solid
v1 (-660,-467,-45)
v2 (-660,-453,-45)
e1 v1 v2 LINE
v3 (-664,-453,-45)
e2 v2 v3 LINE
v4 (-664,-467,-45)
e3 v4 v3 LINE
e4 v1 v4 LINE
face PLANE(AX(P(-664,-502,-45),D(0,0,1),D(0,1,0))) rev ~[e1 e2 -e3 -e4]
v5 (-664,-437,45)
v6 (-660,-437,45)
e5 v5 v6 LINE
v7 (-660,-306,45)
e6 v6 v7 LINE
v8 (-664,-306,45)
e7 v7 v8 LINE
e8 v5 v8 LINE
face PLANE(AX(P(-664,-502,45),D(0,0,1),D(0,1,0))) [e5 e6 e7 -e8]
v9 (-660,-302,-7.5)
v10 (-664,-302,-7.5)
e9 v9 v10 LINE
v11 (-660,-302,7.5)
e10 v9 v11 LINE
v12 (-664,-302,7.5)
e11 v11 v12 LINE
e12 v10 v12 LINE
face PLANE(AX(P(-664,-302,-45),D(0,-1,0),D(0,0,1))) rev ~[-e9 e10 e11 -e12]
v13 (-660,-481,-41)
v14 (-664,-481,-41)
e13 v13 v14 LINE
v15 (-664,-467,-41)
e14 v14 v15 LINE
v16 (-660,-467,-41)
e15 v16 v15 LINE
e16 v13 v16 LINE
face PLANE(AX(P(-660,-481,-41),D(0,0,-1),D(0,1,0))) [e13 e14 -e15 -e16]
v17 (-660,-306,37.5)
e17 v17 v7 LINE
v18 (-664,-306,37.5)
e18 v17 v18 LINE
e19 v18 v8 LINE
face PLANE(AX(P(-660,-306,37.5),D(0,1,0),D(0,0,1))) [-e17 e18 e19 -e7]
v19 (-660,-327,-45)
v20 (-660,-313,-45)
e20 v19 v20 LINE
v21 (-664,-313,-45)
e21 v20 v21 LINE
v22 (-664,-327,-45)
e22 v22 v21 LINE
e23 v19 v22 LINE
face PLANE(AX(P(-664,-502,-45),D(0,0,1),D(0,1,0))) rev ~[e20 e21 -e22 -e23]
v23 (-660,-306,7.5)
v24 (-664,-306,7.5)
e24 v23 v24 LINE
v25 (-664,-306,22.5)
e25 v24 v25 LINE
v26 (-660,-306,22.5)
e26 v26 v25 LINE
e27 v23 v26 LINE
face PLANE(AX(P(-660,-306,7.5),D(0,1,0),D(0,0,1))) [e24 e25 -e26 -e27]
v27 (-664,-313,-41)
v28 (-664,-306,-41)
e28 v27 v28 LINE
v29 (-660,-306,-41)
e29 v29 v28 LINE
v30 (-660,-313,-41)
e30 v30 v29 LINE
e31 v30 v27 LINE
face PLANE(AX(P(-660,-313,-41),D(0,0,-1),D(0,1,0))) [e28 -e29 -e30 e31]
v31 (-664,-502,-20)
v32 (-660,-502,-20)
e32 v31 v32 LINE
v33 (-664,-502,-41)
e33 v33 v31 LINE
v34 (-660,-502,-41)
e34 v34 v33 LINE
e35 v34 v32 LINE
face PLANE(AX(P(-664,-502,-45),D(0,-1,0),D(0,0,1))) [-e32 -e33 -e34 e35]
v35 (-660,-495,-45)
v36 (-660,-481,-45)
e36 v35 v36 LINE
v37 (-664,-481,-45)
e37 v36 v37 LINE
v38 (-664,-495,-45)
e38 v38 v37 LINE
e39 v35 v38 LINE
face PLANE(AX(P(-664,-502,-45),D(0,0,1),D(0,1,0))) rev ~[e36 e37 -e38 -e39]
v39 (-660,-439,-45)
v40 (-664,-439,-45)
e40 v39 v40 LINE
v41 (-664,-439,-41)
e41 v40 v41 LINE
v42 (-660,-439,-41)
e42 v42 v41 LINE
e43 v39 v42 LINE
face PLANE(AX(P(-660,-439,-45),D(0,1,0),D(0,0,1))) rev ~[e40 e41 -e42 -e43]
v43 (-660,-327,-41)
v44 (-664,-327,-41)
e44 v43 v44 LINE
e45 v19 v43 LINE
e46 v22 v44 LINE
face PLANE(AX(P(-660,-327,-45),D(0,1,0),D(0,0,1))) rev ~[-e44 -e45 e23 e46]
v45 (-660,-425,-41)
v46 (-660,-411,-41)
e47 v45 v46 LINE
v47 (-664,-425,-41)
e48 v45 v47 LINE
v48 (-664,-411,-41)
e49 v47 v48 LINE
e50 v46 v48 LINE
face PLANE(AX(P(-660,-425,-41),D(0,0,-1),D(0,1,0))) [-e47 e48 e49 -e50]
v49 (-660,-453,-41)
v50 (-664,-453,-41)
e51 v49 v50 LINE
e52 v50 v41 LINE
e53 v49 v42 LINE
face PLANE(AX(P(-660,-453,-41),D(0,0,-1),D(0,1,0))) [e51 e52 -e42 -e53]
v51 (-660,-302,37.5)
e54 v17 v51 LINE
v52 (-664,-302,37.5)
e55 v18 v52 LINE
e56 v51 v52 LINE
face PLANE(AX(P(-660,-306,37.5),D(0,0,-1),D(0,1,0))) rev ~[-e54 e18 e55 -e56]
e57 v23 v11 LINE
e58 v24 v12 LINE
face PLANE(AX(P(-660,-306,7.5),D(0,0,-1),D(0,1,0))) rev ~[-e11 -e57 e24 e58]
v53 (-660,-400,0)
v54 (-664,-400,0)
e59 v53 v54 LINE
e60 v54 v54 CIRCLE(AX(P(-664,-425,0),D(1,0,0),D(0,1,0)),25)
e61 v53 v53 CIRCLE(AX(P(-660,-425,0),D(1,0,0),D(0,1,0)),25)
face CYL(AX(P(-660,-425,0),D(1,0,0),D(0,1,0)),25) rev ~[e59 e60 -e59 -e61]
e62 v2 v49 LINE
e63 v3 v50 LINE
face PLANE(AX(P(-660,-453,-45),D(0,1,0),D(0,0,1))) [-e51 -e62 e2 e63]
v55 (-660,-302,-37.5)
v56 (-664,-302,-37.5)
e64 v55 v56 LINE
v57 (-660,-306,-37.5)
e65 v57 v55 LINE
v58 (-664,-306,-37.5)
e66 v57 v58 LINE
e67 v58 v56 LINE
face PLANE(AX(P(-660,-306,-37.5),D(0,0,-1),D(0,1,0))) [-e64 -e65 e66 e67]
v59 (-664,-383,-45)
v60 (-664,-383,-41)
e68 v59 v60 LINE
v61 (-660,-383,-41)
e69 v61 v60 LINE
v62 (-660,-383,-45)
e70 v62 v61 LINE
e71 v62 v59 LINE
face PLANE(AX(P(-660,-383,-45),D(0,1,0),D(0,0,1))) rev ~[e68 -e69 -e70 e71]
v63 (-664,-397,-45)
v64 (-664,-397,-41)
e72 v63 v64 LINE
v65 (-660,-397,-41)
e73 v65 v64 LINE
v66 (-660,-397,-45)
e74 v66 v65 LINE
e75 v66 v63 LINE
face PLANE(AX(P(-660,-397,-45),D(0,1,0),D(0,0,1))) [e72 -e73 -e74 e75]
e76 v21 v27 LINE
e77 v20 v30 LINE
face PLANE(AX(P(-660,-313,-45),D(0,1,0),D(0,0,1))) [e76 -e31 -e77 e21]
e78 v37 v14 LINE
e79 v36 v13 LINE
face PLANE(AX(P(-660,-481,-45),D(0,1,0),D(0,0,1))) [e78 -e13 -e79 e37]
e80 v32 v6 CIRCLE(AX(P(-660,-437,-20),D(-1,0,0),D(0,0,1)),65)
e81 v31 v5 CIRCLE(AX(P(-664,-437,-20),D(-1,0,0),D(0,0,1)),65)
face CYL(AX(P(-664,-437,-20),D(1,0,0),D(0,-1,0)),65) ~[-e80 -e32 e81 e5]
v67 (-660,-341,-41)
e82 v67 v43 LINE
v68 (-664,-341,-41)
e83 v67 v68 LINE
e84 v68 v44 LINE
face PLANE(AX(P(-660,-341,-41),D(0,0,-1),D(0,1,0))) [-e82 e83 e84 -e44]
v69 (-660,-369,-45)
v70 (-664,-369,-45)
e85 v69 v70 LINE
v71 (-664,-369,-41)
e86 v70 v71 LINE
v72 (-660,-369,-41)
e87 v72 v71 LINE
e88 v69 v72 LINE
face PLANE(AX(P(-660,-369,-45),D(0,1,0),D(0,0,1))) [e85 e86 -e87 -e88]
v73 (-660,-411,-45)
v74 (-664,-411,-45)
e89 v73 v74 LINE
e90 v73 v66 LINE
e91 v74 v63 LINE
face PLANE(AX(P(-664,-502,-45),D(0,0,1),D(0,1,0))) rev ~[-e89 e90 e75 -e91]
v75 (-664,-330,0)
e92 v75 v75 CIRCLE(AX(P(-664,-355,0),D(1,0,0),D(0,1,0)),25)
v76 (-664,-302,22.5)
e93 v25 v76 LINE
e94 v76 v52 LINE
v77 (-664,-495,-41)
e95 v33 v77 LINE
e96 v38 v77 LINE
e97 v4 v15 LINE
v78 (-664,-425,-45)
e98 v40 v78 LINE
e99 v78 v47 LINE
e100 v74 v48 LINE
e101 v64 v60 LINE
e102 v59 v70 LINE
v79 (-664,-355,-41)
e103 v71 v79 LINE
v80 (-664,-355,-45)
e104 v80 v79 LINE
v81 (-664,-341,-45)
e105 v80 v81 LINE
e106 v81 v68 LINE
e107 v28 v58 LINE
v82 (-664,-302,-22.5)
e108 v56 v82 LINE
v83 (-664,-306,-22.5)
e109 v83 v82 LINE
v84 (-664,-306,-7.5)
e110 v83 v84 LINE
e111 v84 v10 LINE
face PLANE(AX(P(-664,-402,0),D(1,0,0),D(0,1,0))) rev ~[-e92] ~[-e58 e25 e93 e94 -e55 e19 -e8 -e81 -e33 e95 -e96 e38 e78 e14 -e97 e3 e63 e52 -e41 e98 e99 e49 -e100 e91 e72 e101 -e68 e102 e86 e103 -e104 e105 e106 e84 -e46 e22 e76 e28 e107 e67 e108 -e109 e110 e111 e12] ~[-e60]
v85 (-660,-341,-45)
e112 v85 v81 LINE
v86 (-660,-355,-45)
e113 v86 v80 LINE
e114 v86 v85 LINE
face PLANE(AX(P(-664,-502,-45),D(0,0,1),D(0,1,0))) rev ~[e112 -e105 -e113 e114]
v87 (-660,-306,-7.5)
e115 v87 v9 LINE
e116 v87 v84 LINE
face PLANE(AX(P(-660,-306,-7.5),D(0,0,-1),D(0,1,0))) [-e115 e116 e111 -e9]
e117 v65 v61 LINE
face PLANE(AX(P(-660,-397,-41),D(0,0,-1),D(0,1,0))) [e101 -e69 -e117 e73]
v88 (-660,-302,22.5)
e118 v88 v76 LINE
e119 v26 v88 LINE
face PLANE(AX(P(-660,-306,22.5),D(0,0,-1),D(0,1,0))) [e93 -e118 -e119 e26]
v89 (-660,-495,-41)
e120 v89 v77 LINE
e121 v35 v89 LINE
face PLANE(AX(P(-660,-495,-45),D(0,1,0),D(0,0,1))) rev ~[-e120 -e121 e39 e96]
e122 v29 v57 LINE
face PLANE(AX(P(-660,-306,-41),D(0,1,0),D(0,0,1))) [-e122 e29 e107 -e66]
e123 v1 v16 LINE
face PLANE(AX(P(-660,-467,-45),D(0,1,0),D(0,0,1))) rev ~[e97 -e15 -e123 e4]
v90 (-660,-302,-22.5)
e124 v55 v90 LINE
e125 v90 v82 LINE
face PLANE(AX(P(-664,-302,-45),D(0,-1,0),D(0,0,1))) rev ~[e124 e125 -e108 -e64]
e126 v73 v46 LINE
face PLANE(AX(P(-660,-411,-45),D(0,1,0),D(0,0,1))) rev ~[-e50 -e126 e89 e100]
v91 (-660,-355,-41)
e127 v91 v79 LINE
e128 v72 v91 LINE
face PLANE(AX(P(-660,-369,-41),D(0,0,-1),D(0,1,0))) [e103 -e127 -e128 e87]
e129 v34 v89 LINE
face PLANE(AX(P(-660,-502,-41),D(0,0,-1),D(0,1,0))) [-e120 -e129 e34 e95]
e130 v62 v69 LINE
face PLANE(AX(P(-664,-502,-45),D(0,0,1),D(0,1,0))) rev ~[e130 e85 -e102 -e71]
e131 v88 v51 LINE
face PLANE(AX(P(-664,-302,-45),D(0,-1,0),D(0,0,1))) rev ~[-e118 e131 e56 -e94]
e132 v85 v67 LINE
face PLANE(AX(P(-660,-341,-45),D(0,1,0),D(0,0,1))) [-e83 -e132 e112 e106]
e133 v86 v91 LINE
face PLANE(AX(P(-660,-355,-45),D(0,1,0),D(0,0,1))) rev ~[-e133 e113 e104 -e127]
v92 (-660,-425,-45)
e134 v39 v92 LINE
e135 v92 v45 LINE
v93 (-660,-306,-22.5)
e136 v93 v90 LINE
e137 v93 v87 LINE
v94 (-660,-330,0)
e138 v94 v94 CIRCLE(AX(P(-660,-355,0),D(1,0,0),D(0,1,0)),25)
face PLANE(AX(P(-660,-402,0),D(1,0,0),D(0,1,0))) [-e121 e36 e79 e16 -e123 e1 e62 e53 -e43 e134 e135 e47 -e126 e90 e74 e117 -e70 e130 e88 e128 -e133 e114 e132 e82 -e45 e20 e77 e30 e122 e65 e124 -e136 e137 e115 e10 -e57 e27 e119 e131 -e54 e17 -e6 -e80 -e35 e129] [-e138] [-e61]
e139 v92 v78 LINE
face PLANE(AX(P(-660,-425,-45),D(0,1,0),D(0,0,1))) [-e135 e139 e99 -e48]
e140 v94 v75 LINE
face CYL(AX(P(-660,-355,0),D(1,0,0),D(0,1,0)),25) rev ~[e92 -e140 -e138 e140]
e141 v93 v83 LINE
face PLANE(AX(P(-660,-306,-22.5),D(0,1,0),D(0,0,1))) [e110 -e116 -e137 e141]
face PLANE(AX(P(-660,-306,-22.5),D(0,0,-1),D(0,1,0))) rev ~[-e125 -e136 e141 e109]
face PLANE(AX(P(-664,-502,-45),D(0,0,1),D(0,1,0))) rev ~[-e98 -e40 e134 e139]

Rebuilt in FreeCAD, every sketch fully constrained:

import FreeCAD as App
import Part
import Sketcher
from FreeCAD import Vector
Q = App.Units.Quantity


def edges_at(feature, points):
    """Names of the edges that pass closest to the given points."""
    edges = feature.Shape.Edges
    near = lambda p: min(range(len(edges)), key=lambda i: edges[i].distToShape(Part.Vertex(*p))[0])
    return sorted({f"Edge{near(p) + 1}" for p in points})

doc = App.newDocument("Part")
body = doc.addObject("PartDesign::Body", "Body")

# Sketch on YZ plane
sketch1 = body.newObject("Sketcher::SketchObject", "Sketch")
sketch1.AttachmentSupport = (doc.getObject("YZ_Plane"), [""])
sketch1.MapMode = "FlatFace"
sketch1.addGeometry([
    Part.LineSegment(Vector(-100, 45, 0), Vector(-100, -45, 0)),
    Part.LineSegment(Vector(-100, -45, 0), Vector(100, -45, 0)),
    Part.LineSegment(Vector(100, -45, 0), Vector(100, 45, 0)),
    Part.LineSegment(Vector(100, 45, 0), Vector(-100, 45, 0)),
], False)
sketch1.addConstraint([
    Sketcher.Constraint("Coincident", 0, 2, 1, 1),
    Sketcher.Constraint("Coincident", 1, 2, 2, 1),
    Sketcher.Constraint("Coincident", 2, 2, 3, 1),
    Sketcher.Constraint("Coincident", 3, 2, 0, 1),
    Sketcher.Constraint("Vertical", 0),
    Sketcher.Constraint("Horizontal", 1),
    Sketcher.Constraint("Vertical", 2),
    Sketcher.Constraint("Horizontal", 3),
    Sketcher.Constraint("Symmetric", 0, 2, 2, 2, -1, 1),
    Sketcher.Constraint("DistanceX", 1, 1, 1, 2, Q("200 mm")),
    Sketcher.Constraint("DistanceY", 0, 2, 0, 1, Q("90 mm")),
])
pad1 = body.newObject("PartDesign::Pad", "Pad")
pad1.Profile = sketch1
pad1.Length = 4

# Sketch on YZ plane
sketch2 = body.newObject("Sketcher::SketchObject", "Sketch001")
sketch2.AttachmentSupport = (doc.getObject("YZ_Plane"), [""])
sketch2.MapMode = "FlatFace"
sketch2.AttachmentOffset = App.Placement(Vector(0, 0, 4), App.Rotation())
sketch2.addGeometry([
    Part.Circle(Vector(-23, 0, 0), Vector(0, 0, 1), 25),  # 0
    Part.Circle(Vector(47, 0, 0), Vector(0, 0, 1), 25),  # 1
    Part.LineSegment(Vector(-100, -41, 0), Vector(-100, -45, 0)),  # 2
    Part.LineSegment(Vector(-100, -45, 0), Vector(-93, -45, 0)),  # 3
    Part.LineSegment(Vector(-93, -45, 0), Vector(-93, -41, 0)),  # 4
    Part.LineSegment(Vector(-93, -41, 0), Vector(-100, -41, 0)),  # 5
    Part.LineSegment(Vector(-79, -41, 0), Vector(-79, -45, 0)),  # 6
    Part.LineSegment(Vector(-79, -45, 0), Vector(-65, -45, 0)),  # 7
    Part.LineSegment(Vector(-65, -45, 0), Vector(-65, -41, 0)),  # 8
    Part.LineSegment(Vector(-65, -41, 0), Vector(-79, -41, 0)),  # 9
    Part.LineSegment(Vector(-51, -41, 0), Vector(-51, -45, 0)),  # 10
    Part.LineSegment(Vector(-51, -45, 0), Vector(-37, -45, 0)),  # 11
    Part.LineSegment(Vector(-37, -45, 0), Vector(-37, -41, 0)),  # 12
    Part.LineSegment(Vector(-37, -41, 0), Vector(-51, -41, 0)),  # 13
    Part.LineSegment(Vector(-23, -41, 0), Vector(-23, -45, 0)),  # 14
    Part.LineSegment(Vector(-23, -45, 0), Vector(-9, -45, 0)),  # 15
    Part.LineSegment(Vector(-9, -45, 0), Vector(-9, -41, 0)),  # 16
    Part.LineSegment(Vector(-9, -41, 0), Vector(-23, -41, 0)),  # 17
    Part.LineSegment(Vector(5, -41, 0), Vector(5, -45, 0)),  # 18
    Part.LineSegment(Vector(5, -45, 0), Vector(19, -45, 0)),  # 19
    Part.LineSegment(Vector(19, -45, 0), Vector(19, -41, 0)),  # 20
    Part.LineSegment(Vector(19, -41, 0), Vector(5, -41, 0)),  # 21
    Part.LineSegment(Vector(33, -41, 0), Vector(33, -45, 0)),  # 22
    Part.LineSegment(Vector(33, -45, 0), Vector(47, -45, 0)),  # 23
    Part.LineSegment(Vector(47, -45, 0), Vector(47, -41, 0)),  # 24
    Part.LineSegment(Vector(47, -41, 0), Vector(33, -41, 0)),  # 25
    Part.LineSegment(Vector(61, -41, 0), Vector(61, -45, 0)),  # 26
    Part.LineSegment(Vector(61, -45, 0), Vector(75, -45, 0)),  # 27
    Part.LineSegment(Vector(75, -45, 0), Vector(75, -41, 0)),  # 28
    Part.LineSegment(Vector(75, -41, 0), Vector(61, -41, 0)),  # 29
    Part.LineSegment(Vector(96, -7.5, 0), Vector(96, -22.5, 0)),  # 30
    Part.LineSegment(Vector(96, -22.5, 0), Vector(100, -22.5, 0)),  # 31
    Part.LineSegment(Vector(100, -22.5, 0), Vector(100, -7.5, 0)),  # 32
    Part.LineSegment(Vector(100, -7.5, 0), Vector(96, -7.5, 0)),  # 33
    Part.LineSegment(Vector(96, 22.5, 0), Vector(96, 7.5, 0)),  # 34
    Part.LineSegment(Vector(96, 7.5, 0), Vector(100, 7.5, 0)),  # 35
    Part.LineSegment(Vector(100, 7.5, 0), Vector(100, 22.5, 0)),  # 36
    Part.LineSegment(Vector(100, 22.5, 0), Vector(96, 22.5, 0)),  # 37
    Part.LineSegment(Vector(96, 45, 0), Vector(96, 37.5, 0)),  # 38
    Part.LineSegment(Vector(96, 37.5, 0), Vector(100, 37.5, 0)),  # 39
    Part.LineSegment(Vector(100, 37.5, 0), Vector(100, 45, 0)),  # 40
    Part.LineSegment(Vector(100, 45, 0), Vector(96, 45, 0)),  # 41
    Part.LineSegment(Vector(89, -41, 0), Vector(89, -45, 0)),  # 42
    Part.LineSegment(Vector(89, -45, 0), Vector(100, -45, 0)),  # 43
    Part.LineSegment(Vector(100, -45, 0), Vector(100, -37.5, 0)),  # 44
    Part.LineSegment(Vector(100, -37.5, 0), Vector(96, -37.5, 0)),  # 45
    Part.LineSegment(Vector(96, -37.5, 0), Vector(96, -41, 0)),  # 46
    Part.LineSegment(Vector(96, -41, 0), Vector(89, -41, 0)),  # 47
], False)
sketch2.addConstraint([
    Sketcher.Constraint("Coincident", 2, 2, 3, 1),
    Sketcher.Constraint("Coincident", 3, 2, 4, 1),
    Sketcher.Constraint("Coincident", 4, 2, 5, 1),
    Sketcher.Constraint("Coincident", 5, 2, 2, 1),
    Sketcher.Constraint("Coincident", 6, 2, 7, 1),
    Sketcher.Constraint("Coincident", 7, 2, 8, 1),
    Sketcher.Constraint("Coincident", 8, 2, 9, 1),
    Sketcher.Constraint("Coincident", 9, 2, 6, 1),
    Sketcher.Constraint("Coincident", 10, 2, 11, 1),
    Sketcher.Constraint("Coincident", 11, 2, 12, 1),
    Sketcher.Constraint("Coincident", 12, 2, 13, 1),
    Sketcher.Constraint("Coincident", 13, 2, 10, 1),
    Sketcher.Constraint("Coincident", 14, 2, 15, 1),
    Sketcher.Constraint("Coincident", 15, 2, 16, 1),
    Sketcher.Constraint("Coincident", 16, 2, 17, 1),
    Sketcher.Constraint("Coincident", 17, 2, 14, 1),
    Sketcher.Constraint("Coincident", 18, 2, 19, 1),
    Sketcher.Constraint("Coincident", 19, 2, 20, 1),
    Sketcher.Constraint("Coincident", 20, 2, 21, 1),
    Sketcher.Constraint("Coincident", 21, 2, 18, 1),
    Sketcher.Constraint("Coincident", 22, 2, 23, 1),
    Sketcher.Constraint("Coincident", 23, 2, 24, 1),
    Sketcher.Constraint("Coincident", 24, 2, 25, 1),
    Sketcher.Constraint("Coincident", 25, 2, 22, 1),
    Sketcher.Constraint("Coincident", 26, 2, 27, 1),
    Sketcher.Constraint("Coincident", 27, 2, 28, 1),
    Sketcher.Constraint("Coincident", 28, 2, 29, 1),
    Sketcher.Constraint("Coincident", 29, 2, 26, 1),
    Sketcher.Constraint("Coincident", 30, 2, 31, 1),
    Sketcher.Constraint("Coincident", 31, 2, 32, 1),
    Sketcher.Constraint("Coincident", 32, 2, 33, 1),
    Sketcher.Constraint("Coincident", 33, 2, 30, 1),
    Sketcher.Constraint("Coincident", 34, 2, 35, 1),
    Sketcher.Constraint("Coincident", 35, 2, 36, 1),
    Sketcher.Constraint("Coincident", 36, 2, 37, 1),
    Sketcher.Constraint("Coincident", 37, 2, 34, 1),
    Sketcher.Constraint("Coincident", 38, 2, 39, 1),
    Sketcher.Constraint("Coincident", 39, 2, 40, 1),
    Sketcher.Constraint("Coincident", 40, 2, 41, 1),
    Sketcher.Constraint("Coincident", 41, 2, 38, 1),
    Sketcher.Constraint("Coincident", 42, 2, 43, 1),
    Sketcher.Constraint("Coincident", 43, 2, 44, 1),
    Sketcher.Constraint("Coincident", 44, 2, 45, 1),
    Sketcher.Constraint("Coincident", 45, 2, 46, 1),
    Sketcher.Constraint("Coincident", 46, 2, 47, 1),
    Sketcher.Constraint("Coincident", 47, 2, 42, 1),
    Sketcher.Constraint("Vertical", 2),
    Sketcher.Constraint("Horizontal", 3),
    Sketcher.Constraint("Vertical", 4),
    Sketcher.Constraint("Horizontal", 5),
    Sketcher.Constraint("Vertical", 6),
    Sketcher.Constraint("Horizontal", 7),
    Sketcher.Constraint("Vertical", 8),
    Sketcher.Constraint("Horizontal", 9),
    Sketcher.Constraint("Vertical", 10),
    Sketcher.Constraint("Horizontal", 11),
    Sketcher.Constraint("Vertical", 12),
    Sketcher.Constraint("Horizontal", 13),
    Sketcher.Constraint("Vertical", 14),
    Sketcher.Constraint("Horizontal", 15),
    Sketcher.Constraint("Vertical", 16),
    Sketcher.Constraint("Horizontal", 17),
    Sketcher.Constraint("Vertical", 18),
    Sketcher.Constraint("Horizontal", 19),
    Sketcher.Constraint("Vertical", 20),
    Sketcher.Constraint("Horizontal", 21),
    Sketcher.Constraint("Vertical", 22),
    Sketcher.Constraint("Horizontal", 23),
    Sketcher.Constraint("Vertical", 24),
    Sketcher.Constraint("Horizontal", 25),
    Sketcher.Constraint("Vertical", 26),
    Sketcher.Constraint("Horizontal", 27),
    Sketcher.Constraint("Vertical", 28),
    Sketcher.Constraint("Horizontal", 29),
    Sketcher.Constraint("Vertical", 30),
    Sketcher.Constraint("Horizontal", 31),
    Sketcher.Constraint("Vertical", 32),
    Sketcher.Constraint("Horizontal", 33),
    Sketcher.Constraint("Vertical", 34),
    Sketcher.Constraint("Horizontal", 35),
    Sketcher.Constraint("Vertical", 36),
    Sketcher.Constraint("Horizontal", 37),
    Sketcher.Constraint("Vertical", 38),
    Sketcher.Constraint("Horizontal", 39),
    Sketcher.Constraint("Vertical", 40),
    Sketcher.Constraint("Horizontal", 41),
    Sketcher.Constraint("Vertical", 42),
    Sketcher.Constraint("Horizontal", 43),
    Sketcher.Constraint("Vertical", 44),
    Sketcher.Constraint("Horizontal", 45),
    Sketcher.Constraint("Vertical", 46),
    Sketcher.Constraint("Horizontal", 47),
    Sketcher.Constraint("Equal", 0, 1),
    Sketcher.Constraint("Symmetric", 2, 2, 40, 2, -1, 1),
    Sketcher.Constraint("Symmetric", 2, 2, 43, 2, -2),
    Sketcher.Constraint("Symmetric", 33, 2, 34, 2, -1),
    Sketcher.Constraint("Symmetric", 31, 2, 36, 2, -1),
    Sketcher.Constraint("Symmetric", 38, 2, 45, 2, -1),
    Sketcher.Constraint("PointOnObject", 0, 3, -1),
    Sketcher.Constraint("PointOnObject", 1, 3, -1),
    Sketcher.Constraint("Horizontal", 3, 2, 6, 2),
    Sketcher.Constraint("Horizontal", 5, 2, 8, 2),
    Sketcher.Constraint("Horizontal", 7, 2, 10, 2),
    Sketcher.Constraint("Horizontal", 9, 2, 12, 2),
    Sketcher.Constraint("Horizontal", 11, 2, 14, 2),
    Sketcher.Constraint("Horizontal", 13, 2, 16, 2),
    Sketcher.Constraint("Horizontal", 15, 2, 18, 2),
    Sketcher.Constraint("Horizontal", 17, 2, 20, 2),
    Sketcher.Constraint("Horizontal", 19, 2, 22, 2),
    Sketcher.Constraint("Horizontal", 21, 2, 24, 2),
    Sketcher.Constraint("Horizontal", 23, 2, 26, 2),
    Sketcher.Constraint("Horizontal", 25, 2, 28, 2),
    Sketcher.Constraint("Horizontal", 29, 2, 46, 2),
    Sketcher.Constraint("Vertical", 0, 3, 14, 2),
    Sketcher.Constraint("Vertical", 1, 3, 23, 2),
    Sketcher.Constraint("Vertical", 37, 2, 38, 2),
    Sketcher.Constraint("Vertical", 36, 2, 39, 2),
    Sketcher.Constraint("Equal", 9, 11),
    Sketcher.Constraint("Equal", 13, 15),
    Sketcher.Constraint("Equal", 17, 19),
    Sketcher.Constraint("Equal", 21, 23),
    Sketcher.Constraint("Equal", 25, 27),
    Sketcher.Constraint("Equal", 5, 47),
    Sketcher.Constraint("Equal", 45, 2),
    Sketcher.Constraint("Diameter", 0, Q("50 mm")),
    Sketcher.Constraint("DistanceX", 3, 1, 3, 2, Q("7 mm")),
    Sketcher.Constraint("DistanceX", 7, 1, 7, 2, Q("14 mm")),
    Sketcher.Constraint("DistanceX", 31, 1, 31, 2, Q("4 mm")),
    Sketcher.Constraint("DistanceY", 30, 2, 30, 1, Q("15 mm")),
    Sketcher.Constraint("DistanceY", 38, 2, 38, 1, Q("7.5 mm")),
    Sketcher.Constraint("DistanceX", 0, 3, -1, 1, Q("23 mm")),
    Sketcher.Constraint("DistanceX", -1, 1, 1, 3, Q("47 mm")),
    Sketcher.Constraint("DistanceX", 2, 2, -1, 1, Q("100 mm")),
    Sketcher.Constraint("DistanceY", 2, 2, -1, 1, Q("45 mm")),
    Sketcher.Constraint("DistanceX", 6, 2, -1, 1, Q("79 mm")),
    Sketcher.Constraint("DistanceX", 10, 2, -1, 1, Q("51 mm")),
    Sketcher.Constraint("DistanceX", -1, 1, 18, 2, Q("5 mm")),
    Sketcher.Constraint("DistanceX", -1, 1, 26, 2, Q("61 mm")),
    Sketcher.Constraint("DistanceY", 33, 2, 34, 2, Q("15 mm")),
])
pocket1 = body.newObject("PartDesign::Pocket", "Pocket")
pocket1.Profile = sketch2
pocket1.Length = 4
doc.recompute()

fillet = body.newObject("PartDesign::Fillet", "Fillet")
fillet.Base = (pocket1, edges_at(pocket1, [(2, -100, 45)]))
fillet.Radius = 65
body2 = doc.addObject("PartDesign::Body", "Body001")
doc.recompute()

body.Placement = App.Placement(Vector(-664, -402, 0), App.Rotation(Vector(0, 0, 1), 0))
boolean = body2.newObject("PartDesign::Boolean", "Boolean")
boolean.Type = "Fuse"
boolean.addObjects([body])

doc.recompute()
